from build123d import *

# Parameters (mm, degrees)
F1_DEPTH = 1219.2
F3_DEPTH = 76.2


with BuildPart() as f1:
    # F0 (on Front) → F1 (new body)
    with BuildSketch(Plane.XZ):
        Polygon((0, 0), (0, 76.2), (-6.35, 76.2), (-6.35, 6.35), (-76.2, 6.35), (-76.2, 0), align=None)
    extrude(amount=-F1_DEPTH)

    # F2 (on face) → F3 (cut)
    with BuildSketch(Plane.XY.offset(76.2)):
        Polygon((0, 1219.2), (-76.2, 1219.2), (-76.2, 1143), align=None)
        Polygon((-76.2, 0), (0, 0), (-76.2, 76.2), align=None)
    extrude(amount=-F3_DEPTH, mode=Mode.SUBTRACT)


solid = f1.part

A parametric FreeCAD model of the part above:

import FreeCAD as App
import Part
import Sketcher

V = App.Vector
Q = App.Units.Quantity


def add_polygon(sketch, points):
    """Adds a closed chain of lines whose ends are joined by coincident constraints."""
    first, n = sketch.GeometryCount, len(points)
    for a, b in zip(points, points[1:] + points[:1]):
        sketch.addGeometry(Part.LineSegment(App.Vector(*a, 0), App.Vector(*b, 0)), False)
    for i in range(n):
        sketch.addConstraint(Sketcher.Constraint("Coincident", first + i, 2, first + (i + 1) % n, 1))

doc = App.newDocument("Part")
params = doc.addObject("Spreadsheet::Sheet", "Params")
for row, (alias, value) in enumerate([
    ("sketch1_width", "3 in"),
    ("sketch1_width2", "0.25 in"),
    ("pad1_length", "48 in"),
    ("sketch2_width", "3 in"),
    ("pocket1_length", "3 in"),
], start=1):
    params.set(f"A{row}", alias)
    params.set(f"B{row}", "=" + value)
    params.setAlias(f"B{row}", alias)

body = doc.addObject("PartDesign::Body", "Body")

# Sketch on XZ plane
sketch1 = body.newObject("Sketcher::SketchObject", "Sketch")
sketch1.AttachmentSupport = (doc.getObject("XZ_Plane"), [""])
sketch1.MapMode = "FlatFace"
add_polygon(sketch1, [(0, 0), (0, 76), (-6, 76), (-6, 6), (-76, 6), (-76, 0)])  # lines 0-5
sketch1.addConstraint([
    Sketcher.Constraint("Vertical", 0),
    Sketcher.Constraint("Horizontal", 1),
    Sketcher.Constraint("Vertical", 2),
    Sketcher.Constraint("Horizontal", 3),
    Sketcher.Constraint("Vertical", 4),
    Sketcher.Constraint("Horizontal", 5),
    Sketcher.Constraint("Coincident", 5, 2, -1, 1),
    Sketcher.Constraint("Equal", 5, 0),
    Sketcher.Constraint("Equal", 3, 2),
    Sketcher.Constraint("DistanceX", 5, 1, 5, 2, Q("3 in")),
    Sketcher.Constraint("DistanceX", 1, 2, 1, 1, Q("0.25 in")),
])
sketch1.setExpression("Constraints[15]", "Params.sketch1_width")
sketch1.setExpression("Constraints[16]", "Params.sketch1_width2")
pad1 = body.newObject("PartDesign::Pad", "Pad")
pad1.Profile = sketch1
pad1.setExpression("Length", "Params.pad1_length")
pad1.Reversed = True

# Sketch on XY plane
sketch2 = body.newObject("Sketcher::SketchObject", "Sketch001")
sketch2.AttachmentSupport = (doc.getObject("XY_Plane"), [""])
sketch2.MapMode = "FlatFace"
sketch2.AttachmentOffset = App.Placement(V(0, 0, 3 * 25.4), App.Rotation())
add_polygon(sketch2, [(0, 1219), (-76, 1219), (-76, 1143)])  # lines 0-2
add_polygon(sketch2, [(-76, 0), (0, 0), (-76, 76)])  # lines 3-5
sketch2.addConstraint([
    Sketcher.Constraint("Horizontal", 0),
    Sketcher.Constraint("Vertical", 1),
    Sketcher.Constraint("Horizontal", 3),
    Sketcher.Constraint("Vertical", 5),
    Sketcher.Constraint("Coincident", 3, 2, -1, 1),
    Sketcher.Constraint("PointOnObject", 2, 2, -2),
    Sketcher.Constraint("Perpendicular", 2, 4),
    Sketcher.Constraint("Vertical", 1, 2, 4, 2),
    Sketcher.Constraint("Equal", 3, 1),
    Sketcher.Constraint("DistanceX", 0, 2, 0, 1, Q("3 in")),
    Sketcher.Constraint("DistanceY", -1, 1, 0, 2, Q("48 in")),
])
sketch2.setExpression("Constraints[15]", "Params.sketch2_width")
pocket1 = body.newObject("PartDesign::Pocket", "Pocket")
pocket1.Profile = sketch2
pocket1.setExpression("Length", "Params.pocket1_length")

doc.recompute()
